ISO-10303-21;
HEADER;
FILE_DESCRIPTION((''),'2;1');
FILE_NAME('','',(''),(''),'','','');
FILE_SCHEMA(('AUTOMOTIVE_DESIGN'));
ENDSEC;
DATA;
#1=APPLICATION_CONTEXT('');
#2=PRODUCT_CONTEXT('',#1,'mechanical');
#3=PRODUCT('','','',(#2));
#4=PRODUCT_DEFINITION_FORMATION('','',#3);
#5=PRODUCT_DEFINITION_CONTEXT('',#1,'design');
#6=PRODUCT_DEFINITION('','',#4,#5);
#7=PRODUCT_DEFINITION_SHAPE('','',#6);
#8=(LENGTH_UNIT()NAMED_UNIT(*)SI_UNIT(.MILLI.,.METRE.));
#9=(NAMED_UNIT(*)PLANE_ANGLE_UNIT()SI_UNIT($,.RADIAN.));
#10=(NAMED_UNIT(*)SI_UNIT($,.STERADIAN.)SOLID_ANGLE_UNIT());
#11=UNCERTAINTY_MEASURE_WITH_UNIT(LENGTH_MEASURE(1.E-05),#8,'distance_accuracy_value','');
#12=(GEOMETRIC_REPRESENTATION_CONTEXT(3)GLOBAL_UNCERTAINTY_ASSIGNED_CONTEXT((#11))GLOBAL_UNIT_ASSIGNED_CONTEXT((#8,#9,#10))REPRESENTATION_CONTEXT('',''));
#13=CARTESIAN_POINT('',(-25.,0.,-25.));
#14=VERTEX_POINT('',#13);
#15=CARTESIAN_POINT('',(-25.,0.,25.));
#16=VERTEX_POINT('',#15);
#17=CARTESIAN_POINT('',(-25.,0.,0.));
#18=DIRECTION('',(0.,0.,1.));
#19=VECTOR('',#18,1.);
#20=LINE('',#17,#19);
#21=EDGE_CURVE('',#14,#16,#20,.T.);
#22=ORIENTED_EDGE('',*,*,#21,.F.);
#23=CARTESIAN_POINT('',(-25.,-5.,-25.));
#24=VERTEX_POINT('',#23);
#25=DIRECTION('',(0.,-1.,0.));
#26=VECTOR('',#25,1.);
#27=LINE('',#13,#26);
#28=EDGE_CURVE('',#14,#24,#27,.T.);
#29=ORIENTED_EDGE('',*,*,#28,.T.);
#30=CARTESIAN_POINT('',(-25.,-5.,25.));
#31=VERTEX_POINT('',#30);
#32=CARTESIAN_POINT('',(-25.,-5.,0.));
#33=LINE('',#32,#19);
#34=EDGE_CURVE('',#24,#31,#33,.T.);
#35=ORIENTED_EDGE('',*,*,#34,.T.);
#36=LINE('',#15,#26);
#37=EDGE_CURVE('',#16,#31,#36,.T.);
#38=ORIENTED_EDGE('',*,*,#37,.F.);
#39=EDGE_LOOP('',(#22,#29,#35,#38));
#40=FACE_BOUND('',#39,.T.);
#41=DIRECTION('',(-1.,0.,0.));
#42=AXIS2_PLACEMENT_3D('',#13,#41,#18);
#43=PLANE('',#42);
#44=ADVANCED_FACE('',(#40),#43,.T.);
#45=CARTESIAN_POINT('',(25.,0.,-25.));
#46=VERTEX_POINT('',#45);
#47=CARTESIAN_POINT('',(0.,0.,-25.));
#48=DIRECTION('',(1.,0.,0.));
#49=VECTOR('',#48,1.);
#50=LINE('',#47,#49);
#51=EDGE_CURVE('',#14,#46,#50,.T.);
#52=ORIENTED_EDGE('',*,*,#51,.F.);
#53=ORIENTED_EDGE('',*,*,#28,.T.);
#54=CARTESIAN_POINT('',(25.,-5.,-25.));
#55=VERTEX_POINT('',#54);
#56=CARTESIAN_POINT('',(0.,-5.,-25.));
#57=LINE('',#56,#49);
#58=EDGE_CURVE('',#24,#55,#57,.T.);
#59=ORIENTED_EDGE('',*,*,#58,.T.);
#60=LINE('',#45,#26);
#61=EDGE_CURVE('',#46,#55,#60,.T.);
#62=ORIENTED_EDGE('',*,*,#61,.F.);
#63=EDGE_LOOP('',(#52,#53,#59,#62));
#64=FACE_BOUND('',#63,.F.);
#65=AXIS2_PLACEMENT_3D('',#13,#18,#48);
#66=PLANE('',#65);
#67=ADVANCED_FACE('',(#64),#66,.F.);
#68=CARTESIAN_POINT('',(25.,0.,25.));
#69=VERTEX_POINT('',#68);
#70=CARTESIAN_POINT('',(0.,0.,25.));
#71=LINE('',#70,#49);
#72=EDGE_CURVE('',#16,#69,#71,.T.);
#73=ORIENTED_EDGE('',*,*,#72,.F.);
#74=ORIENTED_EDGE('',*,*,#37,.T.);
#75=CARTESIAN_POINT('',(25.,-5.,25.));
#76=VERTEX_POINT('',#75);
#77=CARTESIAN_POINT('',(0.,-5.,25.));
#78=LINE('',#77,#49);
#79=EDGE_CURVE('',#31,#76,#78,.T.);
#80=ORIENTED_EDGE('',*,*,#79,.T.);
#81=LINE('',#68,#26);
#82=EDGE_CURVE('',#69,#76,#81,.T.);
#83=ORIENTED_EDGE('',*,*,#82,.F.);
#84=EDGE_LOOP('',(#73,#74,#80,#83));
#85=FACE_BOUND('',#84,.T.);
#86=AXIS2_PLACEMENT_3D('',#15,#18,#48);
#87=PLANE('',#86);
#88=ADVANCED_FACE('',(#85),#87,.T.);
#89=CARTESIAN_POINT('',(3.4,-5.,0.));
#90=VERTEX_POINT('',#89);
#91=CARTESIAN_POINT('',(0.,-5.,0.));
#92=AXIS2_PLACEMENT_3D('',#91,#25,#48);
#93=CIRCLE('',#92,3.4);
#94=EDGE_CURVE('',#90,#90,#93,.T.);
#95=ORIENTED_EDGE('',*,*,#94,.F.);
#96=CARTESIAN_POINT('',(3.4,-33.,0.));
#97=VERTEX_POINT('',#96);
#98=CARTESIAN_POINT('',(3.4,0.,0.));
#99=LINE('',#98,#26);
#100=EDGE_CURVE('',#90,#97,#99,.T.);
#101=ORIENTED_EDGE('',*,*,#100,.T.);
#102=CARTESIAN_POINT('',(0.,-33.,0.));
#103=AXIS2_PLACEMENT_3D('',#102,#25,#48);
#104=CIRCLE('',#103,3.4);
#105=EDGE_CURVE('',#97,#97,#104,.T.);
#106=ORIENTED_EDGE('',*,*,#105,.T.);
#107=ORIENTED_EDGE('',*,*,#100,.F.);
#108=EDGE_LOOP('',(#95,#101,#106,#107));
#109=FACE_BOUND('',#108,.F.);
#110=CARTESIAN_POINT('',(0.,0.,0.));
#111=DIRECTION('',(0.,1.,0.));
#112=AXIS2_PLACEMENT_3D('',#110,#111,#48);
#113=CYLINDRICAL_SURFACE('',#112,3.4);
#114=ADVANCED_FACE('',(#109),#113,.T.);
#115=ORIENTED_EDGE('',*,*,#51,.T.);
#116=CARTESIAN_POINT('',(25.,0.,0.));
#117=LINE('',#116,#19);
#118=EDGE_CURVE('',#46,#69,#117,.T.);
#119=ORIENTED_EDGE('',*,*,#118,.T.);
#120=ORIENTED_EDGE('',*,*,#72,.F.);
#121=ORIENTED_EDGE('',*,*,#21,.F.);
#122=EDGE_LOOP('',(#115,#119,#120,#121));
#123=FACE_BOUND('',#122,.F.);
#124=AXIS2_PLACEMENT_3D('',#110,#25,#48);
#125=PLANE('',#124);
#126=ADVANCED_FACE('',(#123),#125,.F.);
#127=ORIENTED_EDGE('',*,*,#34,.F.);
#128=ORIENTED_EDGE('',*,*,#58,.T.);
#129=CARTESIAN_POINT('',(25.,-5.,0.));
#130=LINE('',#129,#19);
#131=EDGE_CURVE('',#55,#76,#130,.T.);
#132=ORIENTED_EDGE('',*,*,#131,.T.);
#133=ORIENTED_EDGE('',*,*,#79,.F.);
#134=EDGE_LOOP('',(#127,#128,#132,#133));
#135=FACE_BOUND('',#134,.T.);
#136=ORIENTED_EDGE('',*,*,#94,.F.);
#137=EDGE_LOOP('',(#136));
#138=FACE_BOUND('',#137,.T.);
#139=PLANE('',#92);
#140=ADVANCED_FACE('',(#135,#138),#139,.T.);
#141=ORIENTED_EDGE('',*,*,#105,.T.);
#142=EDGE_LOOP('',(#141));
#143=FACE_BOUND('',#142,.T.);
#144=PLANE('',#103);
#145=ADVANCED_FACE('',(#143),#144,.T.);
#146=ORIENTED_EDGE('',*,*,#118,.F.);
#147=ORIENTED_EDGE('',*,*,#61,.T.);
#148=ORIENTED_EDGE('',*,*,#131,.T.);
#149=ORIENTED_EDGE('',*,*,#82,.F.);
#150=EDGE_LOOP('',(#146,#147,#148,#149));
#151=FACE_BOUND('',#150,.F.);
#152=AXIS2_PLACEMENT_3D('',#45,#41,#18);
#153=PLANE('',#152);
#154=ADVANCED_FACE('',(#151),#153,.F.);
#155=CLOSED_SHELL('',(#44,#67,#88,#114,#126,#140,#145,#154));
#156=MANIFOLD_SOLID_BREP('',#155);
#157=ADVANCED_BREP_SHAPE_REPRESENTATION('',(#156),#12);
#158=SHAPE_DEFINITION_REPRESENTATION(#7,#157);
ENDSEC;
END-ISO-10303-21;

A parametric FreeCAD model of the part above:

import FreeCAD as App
import Part
import Sketcher

V = App.Vector
Q = App.Units.Quantity


def add_polygon(sketch, points):
    """Adds a closed chain of lines whose ends are joined by coincident constraints."""
    first, n = sketch.GeometryCount, len(points)
    for a, b in zip(points, points[1:] + points[:1]):
        sketch.addGeometry(Part.LineSegment(App.Vector(*a, 0), App.Vector(*b, 0)), False)
    for i in range(n):
        sketch.addConstraint(Sketcher.Constraint("Coincident", first + i, 2, first + (i + 1) % n, 1))

doc = App.newDocument("Part")
body = doc.addObject("PartDesign::Body", "Body")

# Sketch on XZ plane
sketch1 = body.newObject("Sketcher::SketchObject", "Sketch")
sketch1.AttachmentSupport = (doc.getObject("XZ_Plane"), [""])
sketch1.MapMode = "FlatFace"
add_polygon(sketch1, [(-25, 25), (-25, -25), (25, -25), (25, 25)])  # lines 0-3
sketch1.addGeometry(Part.Circle(V(0, 0, 0), V(0, 0, 1), 3.4), False)  # 4
sketch1.addConstraint([
    Sketcher.Constraint("Vertical", 0),
    Sketcher.Constraint("Horizontal", 1),
    Sketcher.Constraint("Vertical", 2),
    Sketcher.Constraint("Horizontal", 3),
    Sketcher.Constraint("Coincident", 4, 3, -1, 1),
    Sketcher.Constraint("Symmetric", 0, 2, 2, 2, -1, 1),
    Sketcher.Constraint("Equal", 3, 0),
    Sketcher.Constraint("Diameter", 4, Q("6.8 mm")),
    Sketcher.Constraint("DistanceX", 1, 1, 1, 2, Q("50 mm")),
])
pad1 = body.newObject("PartDesign::Pad", "Pad")
pad1.Profile = sketch1
pad1.Length = 5

# Sketch on XZ plane
sketch2 = body.newObject("Sketcher::SketchObject", "Sketch001")
sketch2.AttachmentSupport = (doc.getObject("XZ_Plane"), [""])
sketch2.MapMode = "FlatFace"
sketch2.addGeometry(Part.Circle(V(0, 0, 0), V(0, 0, 1), 3.4), False)
sketch2.addConstraint([
    Sketcher.Constraint("Coincident", 0, 3, -1, 1),
    Sketcher.Constraint("Diameter", 0, Q("6.8 mm")),
])
pad2 = body.newObject("PartDesign::Pad", "Pad001")
pad2.Profile = sketch2
pad2.Length = 33

doc.recompute()
